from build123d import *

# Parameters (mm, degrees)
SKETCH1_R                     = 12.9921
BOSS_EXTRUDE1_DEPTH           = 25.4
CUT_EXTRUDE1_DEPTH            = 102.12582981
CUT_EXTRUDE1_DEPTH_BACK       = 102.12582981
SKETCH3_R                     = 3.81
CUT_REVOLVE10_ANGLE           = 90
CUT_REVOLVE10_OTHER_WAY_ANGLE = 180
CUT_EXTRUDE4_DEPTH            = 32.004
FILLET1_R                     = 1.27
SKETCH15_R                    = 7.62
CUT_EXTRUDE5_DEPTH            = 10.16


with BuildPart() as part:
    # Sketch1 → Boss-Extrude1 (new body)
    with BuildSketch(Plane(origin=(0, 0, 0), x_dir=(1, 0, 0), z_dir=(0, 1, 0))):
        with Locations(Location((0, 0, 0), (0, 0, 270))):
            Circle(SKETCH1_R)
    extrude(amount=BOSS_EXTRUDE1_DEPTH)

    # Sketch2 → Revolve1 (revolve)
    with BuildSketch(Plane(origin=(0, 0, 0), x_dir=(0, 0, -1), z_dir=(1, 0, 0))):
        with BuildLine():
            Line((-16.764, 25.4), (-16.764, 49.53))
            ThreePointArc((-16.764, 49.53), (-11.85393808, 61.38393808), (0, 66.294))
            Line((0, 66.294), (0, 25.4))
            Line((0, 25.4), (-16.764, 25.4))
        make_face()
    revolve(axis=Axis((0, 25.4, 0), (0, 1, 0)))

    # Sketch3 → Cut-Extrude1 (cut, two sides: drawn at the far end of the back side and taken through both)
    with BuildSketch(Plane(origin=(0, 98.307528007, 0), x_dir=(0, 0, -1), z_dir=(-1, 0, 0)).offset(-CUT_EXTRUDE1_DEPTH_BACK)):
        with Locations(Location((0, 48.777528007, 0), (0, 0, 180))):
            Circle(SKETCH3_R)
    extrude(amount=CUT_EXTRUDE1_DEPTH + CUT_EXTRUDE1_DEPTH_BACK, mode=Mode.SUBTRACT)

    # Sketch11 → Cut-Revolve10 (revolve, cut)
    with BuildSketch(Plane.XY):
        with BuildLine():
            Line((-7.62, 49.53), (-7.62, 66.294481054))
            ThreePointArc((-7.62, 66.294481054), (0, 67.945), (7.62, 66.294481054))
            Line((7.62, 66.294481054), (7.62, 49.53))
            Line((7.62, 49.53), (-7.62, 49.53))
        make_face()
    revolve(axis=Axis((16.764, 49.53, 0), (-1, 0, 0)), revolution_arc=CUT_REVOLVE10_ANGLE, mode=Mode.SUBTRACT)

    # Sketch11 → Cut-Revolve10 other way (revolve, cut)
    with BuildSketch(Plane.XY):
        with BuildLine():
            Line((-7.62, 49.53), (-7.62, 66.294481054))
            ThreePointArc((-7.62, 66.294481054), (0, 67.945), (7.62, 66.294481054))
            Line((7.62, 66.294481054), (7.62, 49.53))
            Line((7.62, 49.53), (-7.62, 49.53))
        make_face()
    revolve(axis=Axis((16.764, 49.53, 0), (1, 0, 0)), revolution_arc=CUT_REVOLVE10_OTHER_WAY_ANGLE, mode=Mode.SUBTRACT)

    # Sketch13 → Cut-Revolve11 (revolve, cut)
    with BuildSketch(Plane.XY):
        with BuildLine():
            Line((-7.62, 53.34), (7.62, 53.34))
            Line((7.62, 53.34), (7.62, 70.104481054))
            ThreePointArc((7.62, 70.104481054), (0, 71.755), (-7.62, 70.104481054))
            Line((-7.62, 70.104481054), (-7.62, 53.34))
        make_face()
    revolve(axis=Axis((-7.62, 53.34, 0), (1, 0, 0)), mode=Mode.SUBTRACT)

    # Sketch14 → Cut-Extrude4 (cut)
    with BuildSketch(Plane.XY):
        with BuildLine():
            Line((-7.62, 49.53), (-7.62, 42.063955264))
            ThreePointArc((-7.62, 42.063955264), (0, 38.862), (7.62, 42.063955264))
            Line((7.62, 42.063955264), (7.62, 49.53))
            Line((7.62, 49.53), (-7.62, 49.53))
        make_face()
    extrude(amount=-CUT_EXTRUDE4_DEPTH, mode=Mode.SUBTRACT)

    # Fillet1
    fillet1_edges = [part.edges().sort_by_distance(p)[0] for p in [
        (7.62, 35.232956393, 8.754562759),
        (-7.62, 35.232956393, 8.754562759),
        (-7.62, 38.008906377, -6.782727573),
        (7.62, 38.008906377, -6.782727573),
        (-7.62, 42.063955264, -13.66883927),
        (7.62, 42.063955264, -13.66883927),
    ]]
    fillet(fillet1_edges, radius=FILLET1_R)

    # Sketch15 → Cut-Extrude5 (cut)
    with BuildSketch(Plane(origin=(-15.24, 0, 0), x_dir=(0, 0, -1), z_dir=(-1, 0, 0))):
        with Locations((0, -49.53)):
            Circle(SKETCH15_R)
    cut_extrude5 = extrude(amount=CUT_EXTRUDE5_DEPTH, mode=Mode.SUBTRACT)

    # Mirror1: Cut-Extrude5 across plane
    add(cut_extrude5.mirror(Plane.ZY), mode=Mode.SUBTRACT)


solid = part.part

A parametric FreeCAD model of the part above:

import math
import FreeCAD as App
import Part
import Sketcher

V = App.Vector
Q = App.Units.Quantity


def edges_at(feature, points):
    """Names of the edges that pass closest to the given points."""
    edges = feature.Shape.Edges
    near = lambda p: min(range(len(edges)), key=lambda i: edges[i].distToShape(Part.Vertex(*p))[0])
    return sorted({f"Edge{near(p) + 1}" for p in points})

doc = App.newDocument("Part")
body = doc.addObject("PartDesign::Body", "Body")

sketch1 = body.newObject("Sketcher::SketchObject", "Sketch")
sketch1.AttachmentSupport = (doc.getObject("XZ_Plane"), [""])
sketch1.MapMode = "FlatFace"
sketch1.addGeometry(Part.Circle(V(0, 0, 0), V(0, 0, 1), 13), False)
sketch1.addConstraint([
    Sketcher.Constraint("Coincident", 0, 3, -1, 1),
    Sketcher.Constraint("Diameter", 0, Q("1.023 in")),
])
pad1 = body.newObject("PartDesign::Pad", "Pad")
pad1.Profile = sketch1
pad1.Length = Q("1 in")
pad1.Reversed = True

sketch2 = body.newObject("Sketcher::SketchObject", "Sketch001")
sketch2.AttachmentSupport = (doc.getObject("YZ_Plane"), [""])
sketch2.MapMode = "FlatFace"
sketch2.addGeometry([
    Part.LineSegment(V(50, 17, 0), V(25, 17, 0)),
    Part.LineSegment(V(25, 17, 0), V(25, 0, 0)),
    Part.LineSegment(V(25, 0, 0), V(66, 0, 0)),
    Part.ArcOfCircle(Part.Circle(V(50, 0, 0), V(0, 0, 1), 17), math.radians(0), math.radians(90)),
], False)
sketch2.addConstraint([
    Sketcher.Constraint("Coincident", 0, 2, 1, 1),
    Sketcher.Constraint("Coincident", 1, 2, 2, 1),
    Sketcher.Constraint("Coincident", 2, 2, 3, 1),
    Sketcher.Constraint("Tangent", 3, 2, 0, 1),
    Sketcher.Constraint("Horizontal", 0),
    Sketcher.Constraint("Vertical", 1),
    Sketcher.Constraint("Horizontal", 2),
    Sketcher.Constraint("PointOnObject", 3, 3, -1),
    Sketcher.Constraint("PointOnObject", 1, 2, -1),
    Sketcher.Constraint("Radius", 3, Q("0.66 in")),
    Sketcher.Constraint("DistanceX", -1, 1, 0, 2, Q("1 in")),
    Sketcher.Constraint("DistanceX", 0, 2, 0, 1, Q("0.95 in")),
])
revolution = body.newObject("PartDesign::Revolution", "Revolution")
revolution.Profile = sketch2
revolution.ReferenceAxis = (sketch2, ["H_Axis"])
revolution.Angle = 360

sketch3 = body.newObject("Sketcher::SketchObject", "Sketch002")
sketch3.AttachmentSupport = (doc.getObject("YZ_Plane"), [""])
sketch3.MapMode = "FlatFace"
sketch3.addGeometry(Part.Circle(V(49.5, 0, 0), V(0, 0, 1), 3.8), False)
sketch3.addConstraint([
    Sketcher.Constraint("PointOnObject", 0, 3, -1),
    Sketcher.Constraint("Diameter", 0, Q("0.3 in")),
    Sketcher.Constraint("DistanceX", -1, 1, 0, 3, Q("1.95 in")),
])
pocket1 = body.newObject("PartDesign::Pocket", "Pocket")
pocket1.Profile = sketch3
pocket1.Type = "ThroughAll"
pocket1.Midplane = True

sketch4 = body.newObject("Sketcher::SketchObject", "Sketch003")
sketch4.AttachmentSupport = (doc.getObject("XY_Plane"), [""])
sketch4.MapMode = "FlatFace"
sketch4.addGeometry([
    Part.LineSegment(V(-8, 66, 0), V(-8, 50, 0)),
    Part.LineSegment(V(-8, 50, 0), V(8, 50, 0)),
    Part.LineSegment(V(8, 50, 0), V(8, 66, 0)),
    Part.ArcOfCircle(Part.Circle(V(0, 50, 0), V(0, 0, 1), 18), math.radians(66), math.radians(114)),
], False)
sketch4.addGeometry(Part.LineSegment(V(8, 50, 0), V(-8, 50, 0)), True)
sketch4.addConstraint([
    Sketcher.Constraint("Coincident", 0, 2, 1, 1),
    Sketcher.Constraint("Coincident", 1, 2, 2, 1),
    Sketcher.Constraint("Coincident", 2, 2, 3, 1),
    Sketcher.Constraint("Coincident", 3, 2, 0, 1),
    Sketcher.Constraint("Vertical", 0),
    Sketcher.Constraint("Horizontal", 1),
    Sketcher.Constraint("Vertical", 2),
    Sketcher.Constraint("Horizontal", 4),
    Sketcher.Constraint("Coincident", 4, 1, 1, 2),
    Sketcher.Constraint("Symmetric", 2, 2, 3, 2, -2),
    Sketcher.Constraint("Horizontal", 3, 3, 0, 2),
    Sketcher.Constraint("Vertical", 3, 2, 4, 2),
    Sketcher.Constraint("DistanceX", 1, 1, 1, 2, Q("0.6 in")),
    Sketcher.Constraint("Radius", 3, Q("0.725 in")),
    Sketcher.Constraint("DistanceY", -1, 1, 3, 3, Q("1.95 in")),
])
groove = body.newObject("PartDesign::Groove", "Groove")
groove.Profile = sketch4
groove.ReferenceAxis = (sketch4, ["Axis0"])
groove.Angle = 90

sketch5 = body.newObject("Sketcher::SketchObject", "Sketch004")
sketch5.AttachmentSupport = (doc.getObject("XY_Plane"), [""])
sketch5.MapMode = "FlatFace"
sketch5.addGeometry([
    Part.LineSegment(V(-8, 66, 0), V(-8, 50, 0)),
    Part.LineSegment(V(-8, 50, 0), V(8, 50, 0)),
    Part.LineSegment(V(8, 50, 0), V(8, 66, 0)),
    Part.ArcOfCircle(Part.Circle(V(0, 50, 0), V(0, 0, 1), 18), math.radians(66), math.radians(114)),
], False)
sketch5.addGeometry(Part.LineSegment(V(-8, 50, 0), V(8, 50, 0)), True)
sketch5.addConstraint([
    Sketcher.Constraint("Coincident", 0, 2, 1, 1),
    Sketcher.Constraint("Coincident", 1, 2, 2, 1),
    Sketcher.Constraint("Coincident", 2, 2, 3, 1),
    Sketcher.Constraint("Coincident", 3, 2, 0, 1),
    Sketcher.Constraint("Vertical", 0),
    Sketcher.Constraint("Horizontal", 1),
    Sketcher.Constraint("Vertical", 2),
    Sketcher.Constraint("Horizontal", 4),
    Sketcher.Constraint("Coincident", 4, 1, 0, 2),
    Sketcher.Constraint("Symmetric", 2, 2, 3, 2, -2),
    Sketcher.Constraint("Horizontal", 3, 3, 0, 2),
    Sketcher.Constraint("Vertical", 2, 2, 4, 2),
    Sketcher.Constraint("DistanceX", 1, 1, 1, 2, Q("0.6 in")),
    Sketcher.Constraint("Radius", 3, Q("0.725 in")),
    Sketcher.Constraint("DistanceY", -1, 1, 3, 3, Q("1.95 in")),
])
groove2 = body.newObject("PartDesign::Groove", "Groove001")
groove2.Profile = sketch5
groove2.ReferenceAxis = (sketch5, ["Axis0"])
groove2.Angle = 180

sketch6 = body.newObject("Sketcher::SketchObject", "Sketch005")
sketch6.AttachmentSupport = (doc.getObject("XY_Plane"), [""])
sketch6.MapMode = "FlatFace"
sketch6.addGeometry([
    Part.LineSegment(V(-8, 53, 0), V(8, 53, 0)),
    Part.LineSegment(V(8, 53, 0), V(8, 70, 0)),
    Part.ArcOfCircle(Part.Circle(V(0, 53, 0), V(0, 0, 1), 18), math.radians(66), math.radians(114)),
    Part.LineSegment(V(-8, 70, 0), V(-8, 53, 0)),
], False)
sketch6.addGeometry(Part.LineSegment(V(-8, 53, 0), V(8, 53, 0)), True)
sketch6.addConstraint([
    Sketcher.Constraint("Coincident", 0, 2, 1, 1),
    Sketcher.Constraint("Coincident", 1, 2, 2, 1),
    Sketcher.Constraint("Coincident", 2, 2, 3, 1),
    Sketcher.Constraint("Coincident", 3, 2, 0, 1),
    Sketcher.Constraint("Horizontal", 0),
    Sketcher.Constraint("Vertical", 1),
    Sketcher.Constraint("Vertical", 3),
    Sketcher.Constraint("Horizontal", 4),
    Sketcher.Constraint("Coincident", 4, 1, 3, 2),
    Sketcher.Constraint("Symmetric", 1, 2, 2, 2, -2),
    Sketcher.Constraint("Horizontal", 2, 3, 0, 2),
    Sketcher.Constraint("Vertical", 1, 2, 4, 2),
    Sketcher.Constraint("DistanceX", 0, 1, 0, 2, Q("0.6 in")),
    Sketcher.Constraint("Radius", 2, Q("0.725 in")),
    Sketcher.Constraint("DistanceY", -1, 1, 2, 3, Q("2.1 in")),
])
groove3 = body.newObject("PartDesign::Groove", "Groove002")
groove3.Profile = sketch6
groove3.ReferenceAxis = (sketch6, ["Axis0"])
groove3.Angle = 360

sketch7 = body.newObject("Sketcher::SketchObject", "Sketch006")
sketch7.AttachmentSupport = (doc.getObject("XY_Plane"), [""])
sketch7.MapMode = "FlatFace"
sketch7.addGeometry([
    Part.LineSegment(V(-8, 50, 0), V(-8, 42, 0)),
    Part.ArcOfCircle(Part.Circle(V(0, 50, 0), V(0, 0, 1), 11), math.radians(-136), math.radians(-44)),
    Part.LineSegment(V(8, 42, 0), V(8, 50, 0)),
    Part.LineSegment(V(8, 50, 0), V(-8, 50, 0)),
], False)
sketch7.addConstraint([
    Sketcher.Constraint("Coincident", 0, 2, 1, 1),
    Sketcher.Constraint("Coincident", 1, 2, 2, 1),
    Sketcher.Constraint("Coincident", 2, 2, 3, 1),
    Sketcher.Constraint("Coincident", 3, 2, 0, 1),
    Sketcher.Constraint("Vertical", 0),
    Sketcher.Constraint("Vertical", 2),
    Sketcher.Constraint("Horizontal", 3),
    Sketcher.Constraint("Symmetric", 0, 2, 1, 2, -2),
    Sketcher.Constraint("Horizontal", 1, 3, 2, 2),
    Sketcher.Constraint("Radius", 1, Q("0.42 in")),
    Sketcher.Constraint("DistanceX", 3, 2, 3, 1, Q("0.6 in")),
    Sketcher.Constraint("DistanceY", -1, 1, 1, 3, Q("1.95 in")),
])
pocket2 = body.newObject("PartDesign::Pocket", "Pocket001")
pocket2.Profile = sketch7
pocket2.Length = Q("1.26 in")
doc.recompute()

fillet = body.newObject("PartDesign::Fillet", "Fillet")
fillet.Base = (pocket2, edges_at(pocket2, [
    (7.62, 35.233, 8.755),
    (-7.62, 35.233, 8.755),
    (-7.62, 38.009, -6.783),
    (7.62, 38.009, -6.783),
    (-7.62, 42.064, -13.669),
    (7.62, 42.064, -13.669),
]))
fillet.Radius = Q("0.05 in")

sketch8 = body.newObject("Sketcher::SketchObject", "Sketch007")
sketch8.AttachmentSupport = (doc.getObject("YZ_Plane"), [""])
sketch8.MapMode = "FlatFace"
sketch8.AttachmentOffset = App.Placement(V(0, 0, -0.6 * 25.4), App.Rotation())
sketch8.addGeometry(Part.Circle(V(50, 0, 0), V(0, 0, 1), 8), False)
sketch8.addConstraint([
    Sketcher.Constraint("PointOnObject", 0, 3, -1),
    Sketcher.Constraint("Diameter", 0, Q("0.6 in")),
    Sketcher.Constraint("DistanceX", -1, 1, 0, 3, Q("1.95 in")),
])
pocket3 = body.newObject("PartDesign::Pocket", "Pocket002")
pocket3.Profile = sketch8
pocket3.Length = Q("0.4 in")
doc.recompute()

mirrored = body.newObject("PartDesign::Mirrored", "Mirrored")
mirrored.Originals = [pocket3]
mirrored.MirrorPlane = (doc.getObject("YZ_Plane"), [""])
body.Tip = mirrored

doc.recompute()
